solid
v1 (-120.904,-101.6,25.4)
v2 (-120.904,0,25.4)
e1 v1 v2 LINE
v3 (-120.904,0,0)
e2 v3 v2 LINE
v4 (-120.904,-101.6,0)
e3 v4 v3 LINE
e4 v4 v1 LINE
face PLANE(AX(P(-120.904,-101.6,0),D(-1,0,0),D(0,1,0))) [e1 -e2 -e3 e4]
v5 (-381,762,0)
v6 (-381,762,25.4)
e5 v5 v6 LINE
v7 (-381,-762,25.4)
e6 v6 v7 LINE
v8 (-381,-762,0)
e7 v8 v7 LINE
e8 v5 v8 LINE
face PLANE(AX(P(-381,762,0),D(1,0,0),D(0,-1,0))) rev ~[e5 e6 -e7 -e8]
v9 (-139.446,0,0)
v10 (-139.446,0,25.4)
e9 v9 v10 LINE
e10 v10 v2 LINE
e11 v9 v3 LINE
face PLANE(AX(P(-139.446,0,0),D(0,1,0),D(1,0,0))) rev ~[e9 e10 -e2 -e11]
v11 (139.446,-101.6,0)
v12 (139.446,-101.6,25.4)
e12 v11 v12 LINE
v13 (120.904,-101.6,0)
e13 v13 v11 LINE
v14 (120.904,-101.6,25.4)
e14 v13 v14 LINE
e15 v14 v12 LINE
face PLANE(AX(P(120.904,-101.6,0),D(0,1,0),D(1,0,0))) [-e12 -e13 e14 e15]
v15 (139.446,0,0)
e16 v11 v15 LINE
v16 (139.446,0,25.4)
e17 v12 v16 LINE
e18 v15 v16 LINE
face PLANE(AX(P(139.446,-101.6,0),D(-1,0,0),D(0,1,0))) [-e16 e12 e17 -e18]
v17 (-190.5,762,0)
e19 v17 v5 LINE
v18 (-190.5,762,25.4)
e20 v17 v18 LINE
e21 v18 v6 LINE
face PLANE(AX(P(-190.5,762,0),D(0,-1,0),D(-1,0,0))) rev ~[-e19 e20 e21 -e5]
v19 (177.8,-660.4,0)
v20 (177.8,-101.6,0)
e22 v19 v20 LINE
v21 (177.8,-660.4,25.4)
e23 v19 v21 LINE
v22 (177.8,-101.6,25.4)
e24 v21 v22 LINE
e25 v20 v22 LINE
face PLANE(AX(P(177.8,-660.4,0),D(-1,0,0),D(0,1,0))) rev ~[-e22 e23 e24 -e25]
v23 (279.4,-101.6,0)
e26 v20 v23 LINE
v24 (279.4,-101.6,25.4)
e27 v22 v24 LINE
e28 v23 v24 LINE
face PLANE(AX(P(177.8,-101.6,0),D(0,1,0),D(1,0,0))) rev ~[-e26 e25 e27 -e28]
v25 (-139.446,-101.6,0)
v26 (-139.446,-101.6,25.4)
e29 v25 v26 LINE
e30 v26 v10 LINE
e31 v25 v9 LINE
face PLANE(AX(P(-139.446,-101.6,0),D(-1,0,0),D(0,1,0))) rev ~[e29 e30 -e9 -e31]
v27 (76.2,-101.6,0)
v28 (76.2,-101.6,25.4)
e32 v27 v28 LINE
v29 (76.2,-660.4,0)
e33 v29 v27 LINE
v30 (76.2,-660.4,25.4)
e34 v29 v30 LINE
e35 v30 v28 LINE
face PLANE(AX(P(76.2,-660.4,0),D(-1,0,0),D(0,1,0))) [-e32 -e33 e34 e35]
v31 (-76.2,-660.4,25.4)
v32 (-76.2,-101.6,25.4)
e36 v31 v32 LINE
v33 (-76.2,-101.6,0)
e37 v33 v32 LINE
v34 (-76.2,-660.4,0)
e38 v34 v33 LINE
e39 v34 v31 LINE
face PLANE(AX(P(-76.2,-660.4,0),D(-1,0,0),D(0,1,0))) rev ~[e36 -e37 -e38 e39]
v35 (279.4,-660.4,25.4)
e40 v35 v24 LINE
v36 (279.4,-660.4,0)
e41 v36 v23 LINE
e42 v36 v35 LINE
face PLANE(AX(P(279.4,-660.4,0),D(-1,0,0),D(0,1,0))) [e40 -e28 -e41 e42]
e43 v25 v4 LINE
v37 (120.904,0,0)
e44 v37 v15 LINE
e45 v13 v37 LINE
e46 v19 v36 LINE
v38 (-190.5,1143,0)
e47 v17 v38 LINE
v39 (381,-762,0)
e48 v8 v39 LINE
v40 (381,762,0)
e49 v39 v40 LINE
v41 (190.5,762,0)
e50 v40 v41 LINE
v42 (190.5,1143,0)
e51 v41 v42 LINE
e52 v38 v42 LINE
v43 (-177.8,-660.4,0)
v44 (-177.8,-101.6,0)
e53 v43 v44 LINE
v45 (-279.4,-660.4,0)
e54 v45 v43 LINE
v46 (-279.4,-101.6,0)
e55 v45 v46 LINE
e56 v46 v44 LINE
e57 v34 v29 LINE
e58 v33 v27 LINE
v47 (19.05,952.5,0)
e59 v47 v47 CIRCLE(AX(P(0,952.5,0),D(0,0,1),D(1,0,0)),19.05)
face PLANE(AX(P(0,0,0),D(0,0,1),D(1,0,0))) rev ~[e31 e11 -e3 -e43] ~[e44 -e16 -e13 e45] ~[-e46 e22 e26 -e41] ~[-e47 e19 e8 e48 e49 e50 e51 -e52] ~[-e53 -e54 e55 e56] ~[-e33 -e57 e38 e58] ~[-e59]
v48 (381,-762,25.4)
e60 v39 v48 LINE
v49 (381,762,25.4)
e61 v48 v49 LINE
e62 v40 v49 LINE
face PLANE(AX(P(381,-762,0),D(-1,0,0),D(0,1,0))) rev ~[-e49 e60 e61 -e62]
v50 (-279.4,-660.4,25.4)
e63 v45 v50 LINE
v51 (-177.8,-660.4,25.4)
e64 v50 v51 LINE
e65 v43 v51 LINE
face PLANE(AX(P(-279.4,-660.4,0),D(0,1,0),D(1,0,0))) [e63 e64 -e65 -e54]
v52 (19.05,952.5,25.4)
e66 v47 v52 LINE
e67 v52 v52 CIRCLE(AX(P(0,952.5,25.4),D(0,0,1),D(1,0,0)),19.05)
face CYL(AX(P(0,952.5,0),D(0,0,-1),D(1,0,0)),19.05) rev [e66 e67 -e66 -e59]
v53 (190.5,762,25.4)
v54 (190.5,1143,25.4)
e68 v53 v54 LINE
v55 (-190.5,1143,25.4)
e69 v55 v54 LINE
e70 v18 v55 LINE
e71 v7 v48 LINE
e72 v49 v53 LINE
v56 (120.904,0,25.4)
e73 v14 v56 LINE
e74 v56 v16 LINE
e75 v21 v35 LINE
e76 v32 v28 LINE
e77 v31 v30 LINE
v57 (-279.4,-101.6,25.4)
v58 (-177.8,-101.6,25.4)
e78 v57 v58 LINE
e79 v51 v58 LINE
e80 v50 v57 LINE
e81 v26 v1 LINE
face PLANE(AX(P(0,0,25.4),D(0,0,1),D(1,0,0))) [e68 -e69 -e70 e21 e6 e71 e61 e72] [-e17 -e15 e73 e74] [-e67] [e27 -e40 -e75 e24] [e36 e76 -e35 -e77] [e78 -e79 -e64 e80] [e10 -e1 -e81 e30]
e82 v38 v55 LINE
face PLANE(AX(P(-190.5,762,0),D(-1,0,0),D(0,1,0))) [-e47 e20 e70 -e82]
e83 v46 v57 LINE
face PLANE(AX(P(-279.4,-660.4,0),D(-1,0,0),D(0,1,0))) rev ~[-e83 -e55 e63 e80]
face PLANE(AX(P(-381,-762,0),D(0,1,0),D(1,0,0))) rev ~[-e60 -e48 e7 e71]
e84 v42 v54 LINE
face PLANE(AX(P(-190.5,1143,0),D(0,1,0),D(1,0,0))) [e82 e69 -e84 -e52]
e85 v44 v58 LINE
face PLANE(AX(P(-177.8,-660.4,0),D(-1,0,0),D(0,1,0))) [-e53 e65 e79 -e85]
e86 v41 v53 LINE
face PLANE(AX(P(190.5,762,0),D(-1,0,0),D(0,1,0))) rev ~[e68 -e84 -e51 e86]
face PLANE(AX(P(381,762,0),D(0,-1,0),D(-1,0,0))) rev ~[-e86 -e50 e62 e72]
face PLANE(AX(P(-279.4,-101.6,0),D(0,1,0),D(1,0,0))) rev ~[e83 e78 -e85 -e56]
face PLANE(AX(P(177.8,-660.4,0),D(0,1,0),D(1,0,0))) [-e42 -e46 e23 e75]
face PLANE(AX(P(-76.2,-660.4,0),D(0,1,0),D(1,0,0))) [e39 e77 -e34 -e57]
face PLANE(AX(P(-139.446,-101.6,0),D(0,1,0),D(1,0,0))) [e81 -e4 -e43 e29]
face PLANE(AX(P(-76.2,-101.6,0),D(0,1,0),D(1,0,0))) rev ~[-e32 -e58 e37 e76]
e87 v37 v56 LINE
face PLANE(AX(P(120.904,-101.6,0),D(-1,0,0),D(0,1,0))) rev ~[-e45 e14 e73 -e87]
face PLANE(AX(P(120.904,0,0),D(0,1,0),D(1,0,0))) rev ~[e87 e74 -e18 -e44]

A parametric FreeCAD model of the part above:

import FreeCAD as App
import Part
import Sketcher
Q = App.Units.Quantity

doc = App.newDocument("Part")
body = doc.addObject("PartDesign::Body", "Body")

# Sketch on XY plane
sketch1 = body.newObject("Sketcher::SketchObject", "Sketch")
sketch1.AttachmentSupport = (doc.getObject("XY_Plane"), [""])
sketch1.MapMode = "FlatFace"
sketch1.addGeometry([
    Part.LineSegment(App.Vector(381, -762, 0), App.Vector(381, 762, 0)),  # 0
    Part.LineSegment(App.Vector(381, 762, 0), App.Vector(190, 762, 0)),  # 1
    Part.LineSegment(App.Vector(190, 762, 0), App.Vector(190, 1143, 0)),  # 2
    Part.LineSegment(App.Vector(190, 1143, 0), App.Vector(-190, 1143, 0)),  # 3
    Part.LineSegment(App.Vector(-190, 1143, 0), App.Vector(-190, 762, 0)),  # 4
    Part.LineSegment(App.Vector(-190, 762, 0), App.Vector(-381, 762, 0)),  # 5
    Part.LineSegment(App.Vector(-381, 762, 0), App.Vector(-381, -762, 0)),  # 6
    Part.LineSegment(App.Vector(-381, -762, 0), App.Vector(381, -762, 0)),  # 7
    Part.LineSegment(App.Vector(-178, -660, 0), App.Vector(-279, -660, 0)),  # 8
    Part.LineSegment(App.Vector(-279, -660, 0), App.Vector(-279, -102, 0)),  # 9
    Part.LineSegment(App.Vector(-279, -102, 0), App.Vector(-178, -102, 0)),  # 10
    Part.LineSegment(App.Vector(-178, -102, 0), App.Vector(-178, -660, 0)),  # 11
    Part.LineSegment(App.Vector(-121, -102, 0), App.Vector(-139, -102, 0)),  # 12
    Part.LineSegment(App.Vector(-139, -102, 0), App.Vector(-139, 0, 0)),  # 13
    Part.LineSegment(App.Vector(-139, 0, 0), App.Vector(-121, 0, 0)),  # 14
    Part.LineSegment(App.Vector(-121, 0, 0), App.Vector(-121, -102, 0)),  # 15
    Part.LineSegment(App.Vector(76, -660, 0), App.Vector(-76, -660, 0)),  # 16
    Part.LineSegment(App.Vector(-76, -660, 0), App.Vector(-76, -102, 0)),  # 17
    Part.LineSegment(App.Vector(-76, -102, 0), App.Vector(76, -102, 0)),  # 18
    Part.LineSegment(App.Vector(76, -102, 0), App.Vector(76, -660, 0)),  # 19
    Part.LineSegment(App.Vector(279, -660, 0), App.Vector(178, -660, 0)),  # 20
    Part.LineSegment(App.Vector(178, -660, 0), App.Vector(178, -102, 0)),  # 21
    Part.LineSegment(App.Vector(178, -102, 0), App.Vector(279, -102, 0)),  # 22
    Part.LineSegment(App.Vector(279, -102, 0), App.Vector(279, -660, 0)),  # 23
    Part.LineSegment(App.Vector(139, -102, 0), App.Vector(121, -102, 0)),  # 24
    Part.LineSegment(App.Vector(121, -102, 0), App.Vector(121, 0, 0)),  # 25
    Part.LineSegment(App.Vector(121, 0, 0), App.Vector(139, 0, 0)),  # 26
    Part.LineSegment(App.Vector(139, 0, 0), App.Vector(139, -102, 0)),  # 27
    Part.Circle(App.Vector(0, 952, 0), App.Vector(0, 0, 1), 19),  # 28
], False)
sketch1.addConstraint([
    Sketcher.Constraint("Coincident", 0, 2, 1, 1),
    Sketcher.Constraint("Coincident", 1, 2, 2, 1),
    Sketcher.Constraint("Coincident", 2, 2, 3, 1),
    Sketcher.Constraint("Coincident", 3, 2, 4, 1),
    Sketcher.Constraint("Coincident", 4, 2, 5, 1),
    Sketcher.Constraint("Coincident", 5, 2, 6, 1),
    Sketcher.Constraint("Coincident", 6, 2, 7, 1),
    Sketcher.Constraint("Coincident", 7, 2, 0, 1),
    Sketcher.Constraint("Coincident", 8, 2, 9, 1),
    Sketcher.Constraint("Coincident", 9, 2, 10, 1),
    Sketcher.Constraint("Coincident", 10, 2, 11, 1),
    Sketcher.Constraint("Coincident", 11, 2, 8, 1),
    Sketcher.Constraint("Coincident", 12, 2, 13, 1),
    Sketcher.Constraint("Coincident", 13, 2, 14, 1),
    Sketcher.Constraint("Coincident", 14, 2, 15, 1),
    Sketcher.Constraint("Coincident", 15, 2, 12, 1),
    Sketcher.Constraint("Coincident", 16, 2, 17, 1),
    Sketcher.Constraint("Coincident", 17, 2, 18, 1),
    Sketcher.Constraint("Coincident", 18, 2, 19, 1),
    Sketcher.Constraint("Coincident", 19, 2, 16, 1),
    Sketcher.Constraint("Coincident", 20, 2, 21, 1),
    Sketcher.Constraint("Coincident", 21, 2, 22, 1),
    Sketcher.Constraint("Coincident", 22, 2, 23, 1),
    Sketcher.Constraint("Coincident", 23, 2, 20, 1),
    Sketcher.Constraint("Coincident", 24, 2, 25, 1),
    Sketcher.Constraint("Coincident", 25, 2, 26, 1),
    Sketcher.Constraint("Coincident", 26, 2, 27, 1),
    Sketcher.Constraint("Coincident", 27, 2, 24, 1),
    Sketcher.Constraint("Vertical", 0),
    Sketcher.Constraint("Horizontal", 1),
    Sketcher.Constraint("Vertical", 2),
    Sketcher.Constraint("Horizontal", 3),
    Sketcher.Constraint("Vertical", 4),
    Sketcher.Constraint("Horizontal", 5),
    Sketcher.Constraint("Vertical", 6),
    Sketcher.Constraint("Horizontal", 7),
    Sketcher.Constraint("Horizontal", 8),
    Sketcher.Constraint("Vertical", 9),
    Sketcher.Constraint("Horizontal", 10),
    Sketcher.Constraint("Vertical", 11),
    Sketcher.Constraint("Horizontal", 12),
    Sketcher.Constraint("Vertical", 13),
    Sketcher.Constraint("Horizontal", 14),
    Sketcher.Constraint("Vertical", 15),
    Sketcher.Constraint("Horizontal", 16),
    Sketcher.Constraint("Vertical", 17),
    Sketcher.Constraint("Horizontal", 18),
    Sketcher.Constraint("Vertical", 19),
    Sketcher.Constraint("Horizontal", 20),
    Sketcher.Constraint("Vertical", 21),
    Sketcher.Constraint("Horizontal", 22),
    Sketcher.Constraint("Vertical", 23),
    Sketcher.Constraint("Horizontal", 24),
    Sketcher.Constraint("Vertical", 25),
    Sketcher.Constraint("Horizontal", 26),
    Sketcher.Constraint("Vertical", 27),
    Sketcher.Constraint("Symmetric", 0, 2, 6, 2, -1, 1),
    Sketcher.Constraint("Symmetric", 14, 2, 25, 2, -1, 1),
    Sketcher.Constraint("Symmetric", 1, 2, 4, 2, -2),
    Sketcher.Constraint("Symmetric", 11, 2, 20, 2, -2),
    Sketcher.Constraint("Symmetric", 9, 2, 22, 2, -2),
    Sketcher.Constraint("Symmetric", 13, 2, 26, 2, -2),
    Sketcher.Constraint("PointOnObject", 28, 3, -2),
    Sketcher.Constraint("Horizontal", 10, 2, 12, 2),
    Sketcher.Constraint("Horizontal", 11, 2, 16, 2),
    Sketcher.Constraint("Horizontal", 15, 2, 17, 2),
    Sketcher.Constraint("Horizontal", 22, 2, 24, 2),
    Sketcher.Constraint("Equal", 3, 2),
    Sketcher.Constraint("Equal", 22, 13),
    Sketcher.Constraint("Diameter", 28, Q("1.5 in")),
    Sketcher.Constraint("DistanceX", 3, 2, 3, 1, Q("15 in")),
    Sketcher.Constraint("DistanceX", 7, 1, 7, 2, Q("30 in")),
    Sketcher.Constraint("DistanceX", 8, 2, 8, 1, Q("4 in")),
    Sketcher.Constraint("DistanceX", 16, 2, 16, 1, Q("6 in")),
    Sketcher.Constraint("DistanceY", 0, 1, 0, 2, Q("60 in")),
    Sketcher.Constraint("DistanceY", 9, 1, 9, 2, Q("22 in")),
    Sketcher.Constraint("DistanceX", 8, 2, -1, 1, Q("11 in")),
    Sketcher.Constraint("DistanceX", 16, 2, -1, 1, Q("3 in")),
    Sketcher.Constraint("DistanceX", 12, 2, 12, 1, Q("0.73 in")),
    Sketcher.Constraint("DistanceY", -1, 1, 28, 3, Q("37.5 in")),
    Sketcher.Constraint("DistanceX", 12, 2, -1, 1, Q("5.49 in")),
])
pad1 = body.newObject("PartDesign::Pad", "Pad")
pad1.Profile = sketch1
pad1.Length = Q("1 in")

doc.recompute()
